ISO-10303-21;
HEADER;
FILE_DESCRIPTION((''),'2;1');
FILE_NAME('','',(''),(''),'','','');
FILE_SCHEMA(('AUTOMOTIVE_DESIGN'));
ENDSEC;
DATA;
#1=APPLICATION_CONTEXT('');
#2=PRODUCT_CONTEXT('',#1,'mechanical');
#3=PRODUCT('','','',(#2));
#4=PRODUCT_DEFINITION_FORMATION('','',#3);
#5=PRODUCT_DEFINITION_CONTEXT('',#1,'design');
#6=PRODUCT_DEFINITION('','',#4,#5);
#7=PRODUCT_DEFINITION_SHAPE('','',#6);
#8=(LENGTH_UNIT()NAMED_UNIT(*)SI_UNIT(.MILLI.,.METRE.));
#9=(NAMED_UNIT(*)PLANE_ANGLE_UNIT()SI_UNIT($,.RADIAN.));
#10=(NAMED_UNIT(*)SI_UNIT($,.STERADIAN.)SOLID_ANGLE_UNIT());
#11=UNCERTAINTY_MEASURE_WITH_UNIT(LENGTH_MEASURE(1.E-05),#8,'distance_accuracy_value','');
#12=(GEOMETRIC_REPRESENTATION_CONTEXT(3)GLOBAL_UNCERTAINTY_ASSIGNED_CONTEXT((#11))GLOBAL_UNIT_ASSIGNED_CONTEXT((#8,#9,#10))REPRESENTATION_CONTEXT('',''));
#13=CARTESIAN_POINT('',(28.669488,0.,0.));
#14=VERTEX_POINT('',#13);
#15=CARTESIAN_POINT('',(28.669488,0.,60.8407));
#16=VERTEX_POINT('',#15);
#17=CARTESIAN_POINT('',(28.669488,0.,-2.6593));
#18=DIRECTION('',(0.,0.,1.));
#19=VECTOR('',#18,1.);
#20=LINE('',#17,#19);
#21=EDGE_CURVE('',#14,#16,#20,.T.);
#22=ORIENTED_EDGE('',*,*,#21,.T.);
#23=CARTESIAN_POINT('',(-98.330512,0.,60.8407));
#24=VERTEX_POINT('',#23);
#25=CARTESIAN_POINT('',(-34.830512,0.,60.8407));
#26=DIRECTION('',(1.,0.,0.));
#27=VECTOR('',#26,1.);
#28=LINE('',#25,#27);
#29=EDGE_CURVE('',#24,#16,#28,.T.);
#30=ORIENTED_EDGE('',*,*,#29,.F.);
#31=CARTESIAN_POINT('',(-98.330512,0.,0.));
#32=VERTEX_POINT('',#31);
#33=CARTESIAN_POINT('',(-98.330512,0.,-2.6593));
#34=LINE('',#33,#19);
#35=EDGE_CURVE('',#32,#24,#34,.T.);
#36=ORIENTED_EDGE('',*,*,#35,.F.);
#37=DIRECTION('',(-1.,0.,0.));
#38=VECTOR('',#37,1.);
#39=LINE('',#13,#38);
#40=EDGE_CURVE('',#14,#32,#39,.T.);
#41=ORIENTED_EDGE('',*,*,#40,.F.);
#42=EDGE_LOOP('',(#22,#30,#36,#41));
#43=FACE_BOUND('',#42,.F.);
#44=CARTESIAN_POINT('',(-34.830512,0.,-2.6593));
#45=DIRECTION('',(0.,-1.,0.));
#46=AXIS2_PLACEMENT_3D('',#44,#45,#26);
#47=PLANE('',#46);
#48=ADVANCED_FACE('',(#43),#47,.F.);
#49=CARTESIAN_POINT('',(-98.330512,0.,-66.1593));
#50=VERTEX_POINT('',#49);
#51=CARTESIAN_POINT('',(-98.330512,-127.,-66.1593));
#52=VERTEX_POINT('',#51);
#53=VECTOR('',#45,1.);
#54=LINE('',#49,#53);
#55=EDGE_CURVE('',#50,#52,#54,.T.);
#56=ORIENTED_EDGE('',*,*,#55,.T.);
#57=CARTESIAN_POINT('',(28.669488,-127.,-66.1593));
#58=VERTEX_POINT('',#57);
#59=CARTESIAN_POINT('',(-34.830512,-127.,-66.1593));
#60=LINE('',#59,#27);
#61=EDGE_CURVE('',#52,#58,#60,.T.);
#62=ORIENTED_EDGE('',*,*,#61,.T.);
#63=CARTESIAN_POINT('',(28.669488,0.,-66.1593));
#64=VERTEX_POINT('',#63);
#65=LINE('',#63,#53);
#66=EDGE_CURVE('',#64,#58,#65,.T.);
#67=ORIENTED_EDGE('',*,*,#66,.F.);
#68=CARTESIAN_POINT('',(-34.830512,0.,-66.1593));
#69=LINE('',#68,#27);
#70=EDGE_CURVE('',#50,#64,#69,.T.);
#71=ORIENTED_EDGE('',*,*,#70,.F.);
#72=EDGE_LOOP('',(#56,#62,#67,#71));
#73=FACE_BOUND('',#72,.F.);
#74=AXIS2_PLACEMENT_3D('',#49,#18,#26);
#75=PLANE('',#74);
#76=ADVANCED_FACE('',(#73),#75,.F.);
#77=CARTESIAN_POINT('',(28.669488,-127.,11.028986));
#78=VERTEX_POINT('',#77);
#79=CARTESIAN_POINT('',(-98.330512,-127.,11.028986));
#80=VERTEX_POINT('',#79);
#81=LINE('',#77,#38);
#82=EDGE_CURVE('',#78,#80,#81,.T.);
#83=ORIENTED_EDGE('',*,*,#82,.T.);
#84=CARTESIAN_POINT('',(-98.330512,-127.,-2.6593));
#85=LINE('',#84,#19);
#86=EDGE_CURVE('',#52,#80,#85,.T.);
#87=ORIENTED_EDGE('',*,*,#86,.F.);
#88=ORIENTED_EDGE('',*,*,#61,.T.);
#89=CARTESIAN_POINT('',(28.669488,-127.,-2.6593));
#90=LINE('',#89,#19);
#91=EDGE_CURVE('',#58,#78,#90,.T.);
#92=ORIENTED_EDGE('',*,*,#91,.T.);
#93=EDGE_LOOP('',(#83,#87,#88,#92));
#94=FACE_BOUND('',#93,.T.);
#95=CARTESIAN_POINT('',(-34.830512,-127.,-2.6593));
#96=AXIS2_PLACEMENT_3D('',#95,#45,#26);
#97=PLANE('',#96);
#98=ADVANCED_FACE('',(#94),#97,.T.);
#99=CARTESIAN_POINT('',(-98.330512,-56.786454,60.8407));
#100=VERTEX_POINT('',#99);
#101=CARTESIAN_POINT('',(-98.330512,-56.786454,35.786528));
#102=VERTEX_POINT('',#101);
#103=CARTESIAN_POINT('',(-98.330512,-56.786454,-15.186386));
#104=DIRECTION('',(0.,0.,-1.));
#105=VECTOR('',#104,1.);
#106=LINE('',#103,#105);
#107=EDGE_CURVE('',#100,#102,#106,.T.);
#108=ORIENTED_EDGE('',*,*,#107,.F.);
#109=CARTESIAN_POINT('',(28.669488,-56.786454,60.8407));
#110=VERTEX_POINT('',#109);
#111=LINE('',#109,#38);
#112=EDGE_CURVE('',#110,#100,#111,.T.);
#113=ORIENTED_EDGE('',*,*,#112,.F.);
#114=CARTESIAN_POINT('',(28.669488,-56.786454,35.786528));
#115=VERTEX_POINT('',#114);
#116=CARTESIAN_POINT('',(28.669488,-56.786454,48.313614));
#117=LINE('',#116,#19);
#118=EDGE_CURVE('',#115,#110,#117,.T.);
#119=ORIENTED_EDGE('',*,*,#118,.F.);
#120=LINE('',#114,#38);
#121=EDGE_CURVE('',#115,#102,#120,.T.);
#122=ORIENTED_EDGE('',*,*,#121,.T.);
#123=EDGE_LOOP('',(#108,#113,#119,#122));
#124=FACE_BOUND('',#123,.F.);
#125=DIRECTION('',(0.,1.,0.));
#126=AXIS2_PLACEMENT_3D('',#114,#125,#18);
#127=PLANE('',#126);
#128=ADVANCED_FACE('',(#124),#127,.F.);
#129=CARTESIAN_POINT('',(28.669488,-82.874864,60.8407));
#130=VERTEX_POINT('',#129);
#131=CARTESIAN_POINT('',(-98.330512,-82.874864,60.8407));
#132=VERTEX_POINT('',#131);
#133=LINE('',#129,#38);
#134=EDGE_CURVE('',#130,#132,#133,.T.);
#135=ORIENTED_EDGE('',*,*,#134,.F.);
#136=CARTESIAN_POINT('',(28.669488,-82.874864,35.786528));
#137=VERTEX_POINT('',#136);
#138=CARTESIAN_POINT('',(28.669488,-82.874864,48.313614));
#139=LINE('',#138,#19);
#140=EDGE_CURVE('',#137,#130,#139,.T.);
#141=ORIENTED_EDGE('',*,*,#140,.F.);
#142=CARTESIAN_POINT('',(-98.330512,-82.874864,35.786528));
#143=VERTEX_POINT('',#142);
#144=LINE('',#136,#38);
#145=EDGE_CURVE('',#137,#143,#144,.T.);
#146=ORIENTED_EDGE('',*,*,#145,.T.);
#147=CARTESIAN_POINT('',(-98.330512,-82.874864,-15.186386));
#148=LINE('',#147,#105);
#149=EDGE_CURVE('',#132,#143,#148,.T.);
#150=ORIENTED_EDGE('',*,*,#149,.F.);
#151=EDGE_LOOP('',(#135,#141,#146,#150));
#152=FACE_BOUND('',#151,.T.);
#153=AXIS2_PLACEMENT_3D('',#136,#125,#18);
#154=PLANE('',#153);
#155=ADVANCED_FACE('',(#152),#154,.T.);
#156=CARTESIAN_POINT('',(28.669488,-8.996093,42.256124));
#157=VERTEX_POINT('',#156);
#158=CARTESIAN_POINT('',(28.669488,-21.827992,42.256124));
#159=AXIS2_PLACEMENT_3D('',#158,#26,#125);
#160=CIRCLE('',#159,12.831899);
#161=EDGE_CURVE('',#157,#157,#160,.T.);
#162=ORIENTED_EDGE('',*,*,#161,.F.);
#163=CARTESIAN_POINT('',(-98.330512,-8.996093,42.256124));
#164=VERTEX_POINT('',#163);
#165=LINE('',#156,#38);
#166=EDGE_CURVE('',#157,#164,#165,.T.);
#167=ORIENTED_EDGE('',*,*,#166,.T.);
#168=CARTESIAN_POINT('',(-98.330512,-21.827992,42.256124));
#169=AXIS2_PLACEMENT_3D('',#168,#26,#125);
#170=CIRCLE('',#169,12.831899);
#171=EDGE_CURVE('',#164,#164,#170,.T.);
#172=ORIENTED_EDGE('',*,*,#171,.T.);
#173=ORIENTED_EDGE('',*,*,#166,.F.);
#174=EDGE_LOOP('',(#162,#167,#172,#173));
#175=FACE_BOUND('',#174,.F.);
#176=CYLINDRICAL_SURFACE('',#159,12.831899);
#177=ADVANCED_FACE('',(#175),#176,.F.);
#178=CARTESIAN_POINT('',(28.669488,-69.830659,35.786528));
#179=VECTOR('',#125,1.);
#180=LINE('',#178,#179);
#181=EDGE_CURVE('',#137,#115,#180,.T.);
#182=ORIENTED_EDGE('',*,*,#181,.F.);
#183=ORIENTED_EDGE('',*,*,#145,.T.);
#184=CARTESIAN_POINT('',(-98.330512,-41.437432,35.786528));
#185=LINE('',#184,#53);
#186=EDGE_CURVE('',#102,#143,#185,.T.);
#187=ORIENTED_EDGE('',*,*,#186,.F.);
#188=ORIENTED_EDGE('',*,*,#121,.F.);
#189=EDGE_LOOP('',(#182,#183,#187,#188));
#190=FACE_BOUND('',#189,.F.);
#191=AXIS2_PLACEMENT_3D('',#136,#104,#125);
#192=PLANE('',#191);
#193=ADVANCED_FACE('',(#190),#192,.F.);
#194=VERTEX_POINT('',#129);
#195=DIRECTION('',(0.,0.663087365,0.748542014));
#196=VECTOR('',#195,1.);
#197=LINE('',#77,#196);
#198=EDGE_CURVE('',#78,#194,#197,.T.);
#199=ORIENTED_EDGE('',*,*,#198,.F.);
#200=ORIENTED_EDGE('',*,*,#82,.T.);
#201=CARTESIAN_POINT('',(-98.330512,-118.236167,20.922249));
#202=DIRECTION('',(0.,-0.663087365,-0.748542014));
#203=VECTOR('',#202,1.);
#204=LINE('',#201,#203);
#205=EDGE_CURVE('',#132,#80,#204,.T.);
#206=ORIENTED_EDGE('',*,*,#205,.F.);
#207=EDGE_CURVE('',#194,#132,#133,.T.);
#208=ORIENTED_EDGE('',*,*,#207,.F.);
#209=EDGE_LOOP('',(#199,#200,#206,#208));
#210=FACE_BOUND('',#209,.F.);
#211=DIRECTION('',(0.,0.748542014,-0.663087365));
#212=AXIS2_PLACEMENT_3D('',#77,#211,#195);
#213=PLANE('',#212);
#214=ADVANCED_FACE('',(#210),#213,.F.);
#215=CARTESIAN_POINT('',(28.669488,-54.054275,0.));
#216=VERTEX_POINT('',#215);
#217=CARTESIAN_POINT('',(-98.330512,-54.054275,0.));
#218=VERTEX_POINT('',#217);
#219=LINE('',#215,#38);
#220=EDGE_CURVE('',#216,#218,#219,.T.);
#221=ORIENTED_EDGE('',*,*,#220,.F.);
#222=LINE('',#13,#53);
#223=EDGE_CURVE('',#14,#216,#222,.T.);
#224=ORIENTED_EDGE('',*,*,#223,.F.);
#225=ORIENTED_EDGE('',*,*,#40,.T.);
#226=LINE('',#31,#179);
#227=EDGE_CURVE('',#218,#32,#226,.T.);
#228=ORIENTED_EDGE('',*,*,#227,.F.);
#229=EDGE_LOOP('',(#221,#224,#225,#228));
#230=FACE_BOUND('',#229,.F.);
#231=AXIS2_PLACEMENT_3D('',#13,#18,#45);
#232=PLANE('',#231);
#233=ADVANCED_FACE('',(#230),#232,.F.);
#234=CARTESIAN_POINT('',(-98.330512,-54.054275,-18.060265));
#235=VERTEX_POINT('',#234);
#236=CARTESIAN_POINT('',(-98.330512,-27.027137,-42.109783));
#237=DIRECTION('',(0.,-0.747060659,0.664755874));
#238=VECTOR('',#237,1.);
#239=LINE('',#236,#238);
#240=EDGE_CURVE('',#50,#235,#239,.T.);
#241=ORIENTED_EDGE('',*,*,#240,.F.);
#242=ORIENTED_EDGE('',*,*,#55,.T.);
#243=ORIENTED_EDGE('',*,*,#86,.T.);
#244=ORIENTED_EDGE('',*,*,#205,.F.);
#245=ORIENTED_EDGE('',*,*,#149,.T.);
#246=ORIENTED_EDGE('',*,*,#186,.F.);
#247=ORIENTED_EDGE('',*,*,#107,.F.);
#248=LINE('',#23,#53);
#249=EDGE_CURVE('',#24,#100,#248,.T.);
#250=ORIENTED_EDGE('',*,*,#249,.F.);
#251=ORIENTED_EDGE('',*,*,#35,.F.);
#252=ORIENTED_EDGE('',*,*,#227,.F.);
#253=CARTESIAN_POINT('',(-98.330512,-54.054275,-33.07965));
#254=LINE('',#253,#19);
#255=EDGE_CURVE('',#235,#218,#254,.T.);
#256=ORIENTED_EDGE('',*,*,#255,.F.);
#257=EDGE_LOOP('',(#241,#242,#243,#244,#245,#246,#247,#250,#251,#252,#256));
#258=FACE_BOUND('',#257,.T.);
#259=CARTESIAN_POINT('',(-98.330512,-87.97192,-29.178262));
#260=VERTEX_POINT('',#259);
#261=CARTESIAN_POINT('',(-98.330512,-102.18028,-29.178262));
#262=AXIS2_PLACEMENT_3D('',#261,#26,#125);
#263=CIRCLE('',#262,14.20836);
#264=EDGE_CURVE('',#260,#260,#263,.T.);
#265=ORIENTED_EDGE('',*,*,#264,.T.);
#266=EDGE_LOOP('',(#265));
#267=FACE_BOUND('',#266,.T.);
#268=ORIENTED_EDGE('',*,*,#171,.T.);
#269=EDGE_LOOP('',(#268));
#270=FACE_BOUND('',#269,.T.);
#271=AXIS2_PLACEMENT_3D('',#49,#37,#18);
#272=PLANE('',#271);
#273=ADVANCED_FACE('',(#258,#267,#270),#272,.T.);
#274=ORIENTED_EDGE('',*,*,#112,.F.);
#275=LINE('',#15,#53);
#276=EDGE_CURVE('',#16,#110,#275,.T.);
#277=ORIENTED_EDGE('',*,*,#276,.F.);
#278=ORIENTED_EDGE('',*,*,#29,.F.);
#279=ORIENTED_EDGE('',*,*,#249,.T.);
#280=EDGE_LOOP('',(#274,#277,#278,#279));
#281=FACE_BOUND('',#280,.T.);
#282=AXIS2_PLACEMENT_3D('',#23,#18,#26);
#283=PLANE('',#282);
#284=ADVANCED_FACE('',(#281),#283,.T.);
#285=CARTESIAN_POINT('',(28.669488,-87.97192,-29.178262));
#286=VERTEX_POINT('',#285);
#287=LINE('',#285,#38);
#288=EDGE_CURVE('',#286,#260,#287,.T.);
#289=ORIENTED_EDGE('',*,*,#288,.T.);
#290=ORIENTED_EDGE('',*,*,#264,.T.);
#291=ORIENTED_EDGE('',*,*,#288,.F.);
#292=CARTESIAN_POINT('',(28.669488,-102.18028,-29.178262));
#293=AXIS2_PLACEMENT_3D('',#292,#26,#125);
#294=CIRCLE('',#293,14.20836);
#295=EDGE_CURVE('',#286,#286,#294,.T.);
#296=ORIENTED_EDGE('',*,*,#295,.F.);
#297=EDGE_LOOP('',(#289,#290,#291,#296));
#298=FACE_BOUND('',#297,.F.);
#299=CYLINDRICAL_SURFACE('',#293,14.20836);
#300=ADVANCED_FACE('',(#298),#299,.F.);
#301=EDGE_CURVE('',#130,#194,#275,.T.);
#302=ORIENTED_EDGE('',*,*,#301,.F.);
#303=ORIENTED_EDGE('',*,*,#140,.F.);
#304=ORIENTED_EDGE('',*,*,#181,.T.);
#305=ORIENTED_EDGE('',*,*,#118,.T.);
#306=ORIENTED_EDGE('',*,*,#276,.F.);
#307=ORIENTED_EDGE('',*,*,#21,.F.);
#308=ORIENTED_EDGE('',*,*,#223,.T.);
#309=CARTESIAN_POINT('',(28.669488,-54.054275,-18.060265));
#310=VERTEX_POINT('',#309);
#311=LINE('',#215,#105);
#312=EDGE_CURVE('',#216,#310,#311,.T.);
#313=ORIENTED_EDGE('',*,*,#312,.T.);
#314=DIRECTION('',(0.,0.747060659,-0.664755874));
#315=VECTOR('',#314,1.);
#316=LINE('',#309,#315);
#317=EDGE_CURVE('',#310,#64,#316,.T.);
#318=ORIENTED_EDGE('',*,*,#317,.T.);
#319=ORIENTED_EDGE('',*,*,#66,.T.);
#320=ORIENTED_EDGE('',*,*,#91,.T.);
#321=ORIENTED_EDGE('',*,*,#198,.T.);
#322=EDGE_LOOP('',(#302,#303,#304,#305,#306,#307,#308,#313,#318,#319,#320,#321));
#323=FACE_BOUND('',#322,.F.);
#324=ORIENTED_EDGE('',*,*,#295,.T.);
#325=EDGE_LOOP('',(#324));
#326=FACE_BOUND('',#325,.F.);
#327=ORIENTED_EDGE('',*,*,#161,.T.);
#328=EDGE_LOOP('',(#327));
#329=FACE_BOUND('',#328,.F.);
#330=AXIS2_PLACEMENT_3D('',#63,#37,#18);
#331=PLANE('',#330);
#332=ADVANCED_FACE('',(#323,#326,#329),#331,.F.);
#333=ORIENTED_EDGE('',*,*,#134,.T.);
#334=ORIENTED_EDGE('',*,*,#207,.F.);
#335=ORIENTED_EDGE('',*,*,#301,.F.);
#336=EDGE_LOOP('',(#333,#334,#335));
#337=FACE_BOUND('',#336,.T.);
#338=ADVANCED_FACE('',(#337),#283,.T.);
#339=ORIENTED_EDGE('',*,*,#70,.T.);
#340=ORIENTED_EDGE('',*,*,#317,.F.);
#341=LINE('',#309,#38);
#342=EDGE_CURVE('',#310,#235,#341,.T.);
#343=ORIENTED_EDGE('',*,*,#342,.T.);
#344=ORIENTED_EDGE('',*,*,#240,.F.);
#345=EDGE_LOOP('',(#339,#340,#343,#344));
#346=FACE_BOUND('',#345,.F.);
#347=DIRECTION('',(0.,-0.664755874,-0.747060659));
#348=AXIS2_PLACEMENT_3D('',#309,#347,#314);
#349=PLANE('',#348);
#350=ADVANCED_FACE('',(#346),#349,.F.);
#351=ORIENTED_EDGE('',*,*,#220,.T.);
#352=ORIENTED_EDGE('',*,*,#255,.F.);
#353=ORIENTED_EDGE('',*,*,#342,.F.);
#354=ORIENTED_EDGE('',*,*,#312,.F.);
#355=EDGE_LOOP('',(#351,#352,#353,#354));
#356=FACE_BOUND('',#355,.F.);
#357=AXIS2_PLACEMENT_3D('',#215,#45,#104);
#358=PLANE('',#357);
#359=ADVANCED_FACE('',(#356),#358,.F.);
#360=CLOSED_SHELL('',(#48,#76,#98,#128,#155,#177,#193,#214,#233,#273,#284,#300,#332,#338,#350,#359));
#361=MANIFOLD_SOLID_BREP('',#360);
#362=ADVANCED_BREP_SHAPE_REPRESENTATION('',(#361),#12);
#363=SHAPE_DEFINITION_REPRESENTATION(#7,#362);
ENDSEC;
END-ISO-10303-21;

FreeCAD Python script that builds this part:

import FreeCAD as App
import Part
import Sketcher
from FreeCAD import Vector
Q = App.Units.Quantity

doc = App.newDocument("Part")
body = doc.addObject("PartDesign::Body", "Body")

# Sketch on XZ plane
sketch1 = body.newObject("Sketcher::SketchObject", "Sketch")
sketch1.AttachmentSupport = (doc.getObject("XZ_Plane"), [""])
sketch1.MapMode = "FlatFace"
sketch1.addGeometry([
    Part.LineSegment(Vector(-98, 61, 0), Vector(-98, -66, 0)),
    Part.LineSegment(Vector(-98, -66, 0), Vector(29, -66, 0)),
    Part.LineSegment(Vector(29, -66, 0), Vector(29, 61, 0)),
    Part.LineSegment(Vector(29, 61, 0), Vector(-98, 61, 0)),
], False)
sketch1.addConstraint([
    Sketcher.Constraint("Coincident", 0, 2, 1, 1),
    Sketcher.Constraint("Coincident", 1, 2, 2, 1),
    Sketcher.Constraint("Coincident", 2, 2, 3, 1),
    Sketcher.Constraint("Coincident", 3, 2, 0, 1),
    Sketcher.Constraint("Vertical", 0),
    Sketcher.Constraint("Horizontal", 1),
    Sketcher.Constraint("Vertical", 2),
    Sketcher.Constraint("Horizontal", 3),
    Sketcher.Constraint("Equal", 3, 0),
    Sketcher.Constraint("DistanceX", 1, 1, 1, 2, Q("5 in")),
    Sketcher.Constraint("DistanceY", 0, 2, -1, 1, Q("66.1593 mm")),
    Sketcher.Constraint("DistanceX", 0, 2, -1, 1, Q("98.330512 mm")),
])
pad1 = body.newObject("PartDesign::Pad", "Pad")
pad1.Profile = sketch1
pad1.Length = Q("5 in")

# Sketch on YZ plane
sketch2 = body.newObject("Sketcher::SketchObject", "Sketch001")
sketch2.AttachmentSupport = (doc.getObject("YZ_Plane"), [""])
sketch2.MapMode = "FlatFace"
sketch2.AttachmentOffset = App.Placement(Vector(0, 0, 28.669488), App.Rotation())
sketch2.addGeometry([
    Part.LineSegment(Vector(-83, 61, 0), Vector(-83, 36, 0)),
    Part.LineSegment(Vector(-83, 36, 0), Vector(-57, 36, 0)),
    Part.LineSegment(Vector(-57, 36, 0), Vector(-57, 61, 0)),
    Part.LineSegment(Vector(-57, 61, 0), Vector(-83, 61, 0)),
], False)
sketch2.addConstraint([
    Sketcher.Constraint("Coincident", 0, 2, 1, 1),
    Sketcher.Constraint("Coincident", 1, 2, 2, 1),
    Sketcher.Constraint("Coincident", 2, 2, 3, 1),
    Sketcher.Constraint("Coincident", 3, 2, 0, 1),
    Sketcher.Constraint("Vertical", 0),
    Sketcher.Constraint("Horizontal", 1),
    Sketcher.Constraint("Vertical", 2),
    Sketcher.Constraint("Horizontal", 3),
    Sketcher.Constraint("DistanceX", 1, 1, 1, 2, Q("26.088409 mm")),
    Sketcher.Constraint("DistanceY", -1, 1, 2, 2, Q("60.8407 mm")),
    Sketcher.Constraint("DistanceY", 0, 2, 0, 1, Q("25.054172 mm")),
    Sketcher.Constraint("DistanceX", 0, 2, -1, 1, Q("82.874864 mm")),
])
pocket1 = body.newObject("PartDesign::Pocket", "Pocket")
pocket1.Profile = sketch2
pocket1.Type = "ThroughAll"

# Sketch on YZ plane
sketch3 = body.newObject("Sketcher::SketchObject", "Sketch002")
sketch3.AttachmentSupport = (doc.getObject("YZ_Plane"), [""])
sketch3.MapMode = "FlatFace"
sketch3.AttachmentOffset = App.Placement(Vector(0, 0, 28.669488), App.Rotation())
sketch3.addGeometry([
    Part.LineSegment(Vector(-127, 11, 0), Vector(-83, 61, 0)),
    Part.LineSegment(Vector(-83, 61, 0), Vector(-127, 61, 0)),
    Part.LineSegment(Vector(-127, 61, 0), Vector(-127, 11, 0)),
], False)
sketch3.addConstraint([
    Sketcher.Constraint("Coincident", 0, 2, 1, 1),
    Sketcher.Constraint("Coincident", 1, 2, 2, 1),
    Sketcher.Constraint("Coincident", 2, 2, 0, 1),
    Sketcher.Constraint("Horizontal", 1),
    Sketcher.Constraint("Vertical", 2),
    Sketcher.Constraint("DistanceX", 1, 2, -1, 1, Q("5 in")),
    Sketcher.Constraint("DistanceY", -1, 1, 0, 2, Q("60.8407 mm")),
    Sketcher.Constraint("Distance", 0, Q("66.544981 mm")),
    Sketcher.Constraint("DistanceX", 1, 2, 1, 1, Q("44.125136 mm")),
])
pocket2 = body.newObject("PartDesign::Pocket", "Pocket001")
pocket2.Profile = sketch3
pocket2.Type = "ThroughAll"

# Sketch on YZ plane
sketch4 = body.newObject("Sketcher::SketchObject", "Sketch003")
sketch4.AttachmentSupport = (doc.getObject("YZ_Plane"), [""])
sketch4.MapMode = "FlatFace"
sketch4.AttachmentOffset = App.Placement(Vector(0, 0, 28.669488), App.Rotation())
sketch4.addGeometry(Part.Circle(Vector(-22, 42, 0), Vector(0, 0, 1), 13), False)
sketch4.addConstraint([
    Sketcher.Constraint("Diameter", 0, Q("25.663798 mm")),
    Sketcher.Constraint("DistanceX", 0, 3, -1, 1, Q("21.827992 mm")),
    Sketcher.Constraint("DistanceY", -1, 1, 0, 3, Q("42.256124 mm")),
])
pocket3 = body.newObject("PartDesign::Pocket", "Pocket002")
pocket3.Profile = sketch4
pocket3.Type = "ThroughAll"

# Sketch on YZ plane
sketch5 = body.newObject("Sketcher::SketchObject", "Sketch004")
sketch5.AttachmentSupport = (doc.getObject("YZ_Plane"), [""])
sketch5.MapMode = "FlatFace"
sketch5.AttachmentOffset = App.Placement(Vector(0, 0, 28.669488), App.Rotation())
sketch5.addGeometry(Part.Circle(Vector(-102, -29, 0), Vector(0, 0, 1), 14), False)
sketch5.addConstraint([
    Sketcher.Constraint("Diameter", 0, Q("28.41672 mm")),
    Sketcher.Constraint("DistanceX", 0, 3, -1, 1, Q("102.18028 mm")),
    Sketcher.Constraint("DistanceY", 0, 3, -1, 1, Q("29.178262 mm")),
])
pocket4 = body.newObject("PartDesign::Pocket", "Pocket003")
pocket4.Profile = sketch5
pocket4.Type = "ThroughAll"

# Sketch on YZ plane
sketch6 = body.newObject("Sketcher::SketchObject", "Sketch005")
sketch6.AttachmentSupport = (doc.getObject("YZ_Plane"), [""])
sketch6.MapMode = "FlatFace"
sketch6.AttachmentOffset = App.Placement(Vector(0, 0, 28.669488), App.Rotation())
sketch6.addGeometry([
    Part.LineSegment(Vector(0, -66, 0), Vector(0, 0, 0)),
    Part.LineSegment(Vector(0, 0, 0), Vector(-54, 0, 0)),
    Part.LineSegment(Vector(-54, 0, 0), Vector(-54, -18, 0)),
    Part.LineSegment(Vector(-54, -18, 0), Vector(0, -66, 0)),
], False)
sketch6.addConstraint([
    Sketcher.Constraint("Coincident", 0, 2, 1, 1),
    Sketcher.Constraint("Coincident", 1, 2, 2, 1),
    Sketcher.Constraint("Coincident", 2, 2, 3, 1),
    Sketcher.Constraint("Coincident", 3, 2, 0, 1),
    Sketcher.Constraint("Vertical", 0),
    Sketcher.Constraint("Horizontal", 1),
    Sketcher.Constraint("Vertical", 2),
    Sketcher.Constraint("Coincident", 0, 2, -1, 1),
    Sketcher.Constraint("DistanceY", 0, 1, 0, 2, Q("66.1593 mm")),
    Sketcher.Constraint("Distance", 3, Q("72.355938 mm")),
    Sketcher.Constraint("DistanceX", 1, 2, 1, 1, Q("54.054275 mm")),
])
pocket5 = body.newObject("PartDesign::Pocket", "Pocket004")
pocket5.Profile = sketch6
pocket5.Type = "ThroughAll"

doc.recompute()
